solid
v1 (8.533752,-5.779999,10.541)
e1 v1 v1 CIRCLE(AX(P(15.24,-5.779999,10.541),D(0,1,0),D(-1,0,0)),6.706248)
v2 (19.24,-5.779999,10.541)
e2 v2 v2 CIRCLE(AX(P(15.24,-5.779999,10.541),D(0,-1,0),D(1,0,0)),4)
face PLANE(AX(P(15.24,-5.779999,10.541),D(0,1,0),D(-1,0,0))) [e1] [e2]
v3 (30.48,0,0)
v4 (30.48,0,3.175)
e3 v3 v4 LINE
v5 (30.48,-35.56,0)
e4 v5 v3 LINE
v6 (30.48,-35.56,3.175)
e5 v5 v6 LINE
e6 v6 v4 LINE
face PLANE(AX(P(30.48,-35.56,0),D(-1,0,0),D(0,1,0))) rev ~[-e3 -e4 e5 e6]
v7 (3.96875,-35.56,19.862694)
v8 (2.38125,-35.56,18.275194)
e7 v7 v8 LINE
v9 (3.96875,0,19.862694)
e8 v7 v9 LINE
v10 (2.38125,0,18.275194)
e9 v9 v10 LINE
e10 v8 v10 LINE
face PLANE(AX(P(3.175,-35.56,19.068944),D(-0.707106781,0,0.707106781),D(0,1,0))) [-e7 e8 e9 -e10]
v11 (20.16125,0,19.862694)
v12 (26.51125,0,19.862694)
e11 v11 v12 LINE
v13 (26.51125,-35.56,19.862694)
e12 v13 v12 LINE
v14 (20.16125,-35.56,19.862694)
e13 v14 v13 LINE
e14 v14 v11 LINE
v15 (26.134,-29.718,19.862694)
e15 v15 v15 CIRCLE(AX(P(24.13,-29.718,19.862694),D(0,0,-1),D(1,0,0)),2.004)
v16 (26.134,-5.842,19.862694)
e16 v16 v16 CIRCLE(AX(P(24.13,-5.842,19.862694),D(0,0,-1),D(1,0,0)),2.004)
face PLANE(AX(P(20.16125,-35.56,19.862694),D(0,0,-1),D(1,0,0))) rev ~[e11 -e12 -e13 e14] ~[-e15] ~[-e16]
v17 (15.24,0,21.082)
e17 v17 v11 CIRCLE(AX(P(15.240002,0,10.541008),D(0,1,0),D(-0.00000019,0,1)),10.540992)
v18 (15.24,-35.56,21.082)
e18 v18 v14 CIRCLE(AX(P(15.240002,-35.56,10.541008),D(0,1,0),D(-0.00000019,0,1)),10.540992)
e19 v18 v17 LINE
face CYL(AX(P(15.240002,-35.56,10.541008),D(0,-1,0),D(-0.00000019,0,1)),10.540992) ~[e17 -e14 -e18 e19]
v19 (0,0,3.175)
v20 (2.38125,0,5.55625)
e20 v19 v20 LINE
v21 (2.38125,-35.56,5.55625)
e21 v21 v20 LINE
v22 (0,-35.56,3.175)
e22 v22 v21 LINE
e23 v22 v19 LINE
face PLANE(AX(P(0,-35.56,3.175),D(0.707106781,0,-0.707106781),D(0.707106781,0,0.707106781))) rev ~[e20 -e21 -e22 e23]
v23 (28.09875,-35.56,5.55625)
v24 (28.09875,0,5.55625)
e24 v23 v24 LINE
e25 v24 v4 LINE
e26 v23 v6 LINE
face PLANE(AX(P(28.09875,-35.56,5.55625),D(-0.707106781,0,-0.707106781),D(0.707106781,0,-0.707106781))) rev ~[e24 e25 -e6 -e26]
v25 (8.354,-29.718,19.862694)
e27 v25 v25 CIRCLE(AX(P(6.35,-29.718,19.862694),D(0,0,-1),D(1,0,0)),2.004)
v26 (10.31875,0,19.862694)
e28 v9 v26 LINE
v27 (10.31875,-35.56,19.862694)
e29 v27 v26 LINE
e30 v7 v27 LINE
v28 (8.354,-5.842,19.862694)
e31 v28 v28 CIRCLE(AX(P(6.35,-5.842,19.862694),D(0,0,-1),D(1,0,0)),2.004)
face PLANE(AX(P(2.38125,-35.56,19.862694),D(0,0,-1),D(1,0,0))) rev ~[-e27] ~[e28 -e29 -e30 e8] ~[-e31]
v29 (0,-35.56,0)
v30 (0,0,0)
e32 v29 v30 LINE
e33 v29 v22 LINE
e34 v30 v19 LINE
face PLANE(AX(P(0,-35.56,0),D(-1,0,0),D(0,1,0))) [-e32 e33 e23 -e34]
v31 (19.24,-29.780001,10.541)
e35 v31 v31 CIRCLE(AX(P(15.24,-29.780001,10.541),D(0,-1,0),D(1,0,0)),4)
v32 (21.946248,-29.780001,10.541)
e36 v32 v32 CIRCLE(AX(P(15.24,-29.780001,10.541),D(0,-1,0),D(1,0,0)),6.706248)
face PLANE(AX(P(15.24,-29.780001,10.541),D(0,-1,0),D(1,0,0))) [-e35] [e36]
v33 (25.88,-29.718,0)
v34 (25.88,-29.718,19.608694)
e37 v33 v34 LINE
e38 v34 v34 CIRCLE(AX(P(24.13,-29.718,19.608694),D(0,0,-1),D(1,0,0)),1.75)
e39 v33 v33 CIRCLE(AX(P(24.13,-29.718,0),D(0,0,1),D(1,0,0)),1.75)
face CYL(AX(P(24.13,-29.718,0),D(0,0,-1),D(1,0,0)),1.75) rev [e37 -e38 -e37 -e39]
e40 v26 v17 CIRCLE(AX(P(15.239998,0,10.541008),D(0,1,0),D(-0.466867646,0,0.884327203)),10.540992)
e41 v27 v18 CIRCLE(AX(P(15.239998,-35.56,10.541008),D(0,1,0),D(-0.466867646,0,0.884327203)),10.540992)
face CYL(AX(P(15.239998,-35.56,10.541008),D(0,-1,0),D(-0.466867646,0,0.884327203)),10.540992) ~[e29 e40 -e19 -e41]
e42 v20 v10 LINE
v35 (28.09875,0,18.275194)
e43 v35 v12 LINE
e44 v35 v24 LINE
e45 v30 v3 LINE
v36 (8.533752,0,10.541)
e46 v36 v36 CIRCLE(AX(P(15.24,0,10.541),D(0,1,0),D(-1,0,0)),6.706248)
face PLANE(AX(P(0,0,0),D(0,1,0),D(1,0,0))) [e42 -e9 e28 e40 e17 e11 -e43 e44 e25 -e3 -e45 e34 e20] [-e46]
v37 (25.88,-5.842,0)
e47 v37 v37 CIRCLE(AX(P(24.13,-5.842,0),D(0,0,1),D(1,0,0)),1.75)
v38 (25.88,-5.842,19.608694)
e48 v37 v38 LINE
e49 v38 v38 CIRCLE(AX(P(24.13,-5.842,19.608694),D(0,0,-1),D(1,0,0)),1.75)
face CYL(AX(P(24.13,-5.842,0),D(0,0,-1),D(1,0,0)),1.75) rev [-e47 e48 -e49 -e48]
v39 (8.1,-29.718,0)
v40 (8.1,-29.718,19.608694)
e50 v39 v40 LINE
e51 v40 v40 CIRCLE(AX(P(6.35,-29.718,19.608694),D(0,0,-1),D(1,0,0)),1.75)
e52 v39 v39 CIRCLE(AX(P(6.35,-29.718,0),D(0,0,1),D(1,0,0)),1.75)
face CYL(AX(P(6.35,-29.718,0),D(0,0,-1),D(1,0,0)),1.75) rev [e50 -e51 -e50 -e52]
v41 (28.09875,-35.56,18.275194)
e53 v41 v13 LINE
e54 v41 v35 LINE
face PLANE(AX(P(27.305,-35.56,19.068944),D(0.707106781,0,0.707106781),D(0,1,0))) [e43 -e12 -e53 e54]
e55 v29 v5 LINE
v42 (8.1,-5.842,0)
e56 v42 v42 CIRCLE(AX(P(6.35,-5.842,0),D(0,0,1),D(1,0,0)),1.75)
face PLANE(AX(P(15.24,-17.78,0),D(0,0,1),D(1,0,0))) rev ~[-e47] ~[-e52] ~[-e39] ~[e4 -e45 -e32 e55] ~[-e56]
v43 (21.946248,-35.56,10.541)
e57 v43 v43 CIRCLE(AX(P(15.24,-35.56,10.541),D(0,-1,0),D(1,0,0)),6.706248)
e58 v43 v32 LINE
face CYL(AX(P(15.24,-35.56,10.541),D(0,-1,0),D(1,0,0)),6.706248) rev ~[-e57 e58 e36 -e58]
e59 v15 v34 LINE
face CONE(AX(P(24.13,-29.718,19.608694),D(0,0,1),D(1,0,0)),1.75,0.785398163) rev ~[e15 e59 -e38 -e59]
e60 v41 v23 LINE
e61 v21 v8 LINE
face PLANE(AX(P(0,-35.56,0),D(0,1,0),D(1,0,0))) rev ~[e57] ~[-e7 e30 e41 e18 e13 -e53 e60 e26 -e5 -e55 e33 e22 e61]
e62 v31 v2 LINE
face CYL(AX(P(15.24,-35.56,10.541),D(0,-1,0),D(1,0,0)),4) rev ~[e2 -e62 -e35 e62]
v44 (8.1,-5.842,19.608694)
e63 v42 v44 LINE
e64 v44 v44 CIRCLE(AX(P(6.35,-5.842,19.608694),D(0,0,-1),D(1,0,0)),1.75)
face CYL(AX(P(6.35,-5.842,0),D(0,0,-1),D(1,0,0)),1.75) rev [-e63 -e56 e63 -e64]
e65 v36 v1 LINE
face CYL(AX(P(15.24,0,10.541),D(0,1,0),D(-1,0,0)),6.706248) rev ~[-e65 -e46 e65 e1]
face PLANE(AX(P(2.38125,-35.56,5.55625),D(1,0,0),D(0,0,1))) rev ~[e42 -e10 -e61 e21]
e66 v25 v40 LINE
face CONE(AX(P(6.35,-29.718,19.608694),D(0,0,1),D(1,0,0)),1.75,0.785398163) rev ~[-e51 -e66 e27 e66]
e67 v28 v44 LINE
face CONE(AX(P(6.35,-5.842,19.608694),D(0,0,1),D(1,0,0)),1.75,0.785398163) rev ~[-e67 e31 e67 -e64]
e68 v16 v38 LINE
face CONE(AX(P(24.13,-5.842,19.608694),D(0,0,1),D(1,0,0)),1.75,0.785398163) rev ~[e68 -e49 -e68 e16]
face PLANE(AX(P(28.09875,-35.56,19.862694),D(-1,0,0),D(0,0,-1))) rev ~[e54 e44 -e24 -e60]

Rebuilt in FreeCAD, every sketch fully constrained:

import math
import FreeCAD as App
import Part
import Sketcher
from FreeCAD import Vector
Q = App.Units.Quantity


def edges_at(feature, points):
    """Names of the edges that pass closest to the given points."""
    edges = feature.Shape.Edges
    near = lambda p: min(range(len(edges)), key=lambda i: edges[i].distToShape(Part.Vertex(*p))[0])
    return sorted({f"Edge{near(p) + 1}" for p in points})


def add_polygon(sketch, points):
    """Adds a closed chain of lines whose ends are joined by coincident constraints."""
    first, n = sketch.GeometryCount, len(points)
    for a, b in zip(points, points[1:] + points[:1]):
        sketch.addGeometry(Part.LineSegment(App.Vector(*a, 0), App.Vector(*b, 0)), False)
    for i in range(n):
        sketch.addConstraint(Sketcher.Constraint("Coincident", first + i, 2, first + (i + 1) % n, 1))

doc = App.newDocument("Part")
body = doc.addObject("PartDesign::Body", "Body")

# Sketch on XY plane
sketch1 = body.newObject("Sketcher::SketchObject", "Sketch")
sketch1.AttachmentSupport = (doc.getObject("XY_Plane"), [""])
sketch1.MapMode = "FlatFace"
add_polygon(sketch1, [(0, 0), (0, -35.6), (30.5, -35.6), (30.5, 0)])  # lines 0-3
sketch1.addGeometry(Part.Circle(Vector(6.3, -29.7, 0), Vector(0, 0, 1), 1.8), False)  # 4
sketch1.addGeometry(Part.Circle(Vector(24.1, -29.7, 0), Vector(0, 0, 1), 1.8), False)  # 5
sketch1.addGeometry(Part.Circle(Vector(6.3, -5.8, 0), Vector(0, 0, 1), 1.8), False)  # 6
sketch1.addGeometry(Part.Circle(Vector(24.1, -5.8, 0), Vector(0, 0, 1), 1.8), False)  # 7
sketch1.addConstraint([
    Sketcher.Constraint("Vertical", 0),
    Sketcher.Constraint("Horizontal", 1),
    Sketcher.Constraint("Vertical", 2),
    Sketcher.Constraint("Horizontal", 3),
    Sketcher.Constraint("Coincident", 3, 2, -1, 1),
    Sketcher.Constraint("Equal", 4, 5),
    Sketcher.Constraint("Equal", 5, 6),
    Sketcher.Constraint("Equal", 6, 7),
    Sketcher.Constraint("Horizontal", 4, 3, 5, 3),
    Sketcher.Constraint("Horizontal", 6, 3, 7, 3),
    Sketcher.Constraint("Vertical", 4, 3, 6, 3),
    Sketcher.Constraint("Vertical", 5, 3, 7, 3),
    Sketcher.Constraint("DistanceX", 1, 1, 1, 2, Q("1.2 in")),
    Sketcher.Constraint("DistanceY", 0, 2, 0, 1, Q("1.4 in")),
    Sketcher.Constraint("DistanceX", 4, 3, 5, 3, Q("0.7 in")),
    Sketcher.Constraint("Diameter", 4, 3.5),
    Sketcher.Constraint("DistanceX", -1, 1, 4, 3, Q("0.25 in")),
    Sketcher.Constraint("DistanceY", 4, 3, -1, 1, Q("1.17 in")),
    Sketcher.Constraint("DistanceY", 6, 3, -1, 1, Q("0.23 in")),
])
pad1 = body.newObject("PartDesign::Pad", "Pad")
pad1.Profile = sketch1
pad1.Length = Q("0.83 in")

# Sketch on XZ plane
sketch2 = body.newObject("Sketcher::SketchObject", "Sketch001")
sketch2.AttachmentSupport = (doc.getObject("XZ_Plane"), [""])
sketch2.MapMode = "FlatFace"
sketch2.AttachmentOffset = App.Placement(Vector(0, 0, 1.4 * 25.4), App.Rotation())
sketch2.addGeometry([
    Part.Circle(Vector(15.2, 10.5, 0), Vector(0, 0, 1), 4),  # 0
    Part.ArcOfCircle(Part.Circle(Vector(15.2, 10.5, 0), Vector(0, 0, 1), 10.5), math.radians(90), math.radians(118)),  # 1
    Part.LineSegment(Vector(15.2, 21.1, 0), Vector(0, 21.1, 0)),  # 2
    Part.LineSegment(Vector(0, 21.1, 0), Vector(0, 3.2, 0)),  # 3
    Part.LineSegment(Vector(0, 3.2, 0), Vector(2.4, 5.6, 0)),  # 4
    Part.LineSegment(Vector(2.4, 5.6, 0), Vector(2.4, 19.9, 0)),  # 5
    Part.LineSegment(Vector(2.4, 19.9, 0), Vector(10.3, 19.9, 0)),  # 6
    Part.ArcOfCircle(Part.Circle(Vector(15.2, 10.5, 0), Vector(0, 0, 1), 10.5), math.radians(62), math.radians(90)),  # 7
    Part.LineSegment(Vector(20.2, 19.9, 0), Vector(28.1, 19.9, 0)),  # 8
    Part.LineSegment(Vector(28.1, 19.9, 0), Vector(28.1, 5.6, 0)),  # 9
    Part.LineSegment(Vector(28.1, 5.6, 0), Vector(30.5, 3.2, 0)),  # 10
    Part.LineSegment(Vector(30.5, 3.2, 0), Vector(30.5, 21.1, 0)),  # 11
    Part.LineSegment(Vector(30.5, 21.1, 0), Vector(15.2, 21.1, 0)),  # 12
], False)
sketch2.addConstraint([
    Sketcher.Constraint("Tangent", 1, 1, 2, 1),
    Sketcher.Constraint("Coincident", 2, 2, 3, 1),
    Sketcher.Constraint("Coincident", 3, 2, 4, 1),
    Sketcher.Constraint("Coincident", 4, 2, 5, 1),
    Sketcher.Constraint("Coincident", 5, 2, 6, 1),
    Sketcher.Constraint("Coincident", 6, 2, 1, 2),
    Sketcher.Constraint("Coincident", 7, 1, 8, 1),
    Sketcher.Constraint("Coincident", 8, 2, 9, 1),
    Sketcher.Constraint("Coincident", 9, 2, 10, 1),
    Sketcher.Constraint("Coincident", 10, 2, 11, 1),
    Sketcher.Constraint("Coincident", 11, 2, 12, 1),
    Sketcher.Constraint("Tangent", 12, 2, 7, 2),
    Sketcher.Constraint("Horizontal", 2),
    Sketcher.Constraint("Vertical", 3),
    Sketcher.Constraint("Vertical", 5),
    Sketcher.Constraint("Horizontal", 6),
    Sketcher.Constraint("Horizontal", 8),
    Sketcher.Constraint("Vertical", 9),
    Sketcher.Constraint("Vertical", 11),
    Sketcher.Constraint("Horizontal", 12),
    Sketcher.Constraint("Coincident", 1, 3, 0, 3),
    Sketcher.Constraint("Coincident", 7, 3, 0, 3),
    Sketcher.Constraint("Equal", 1, 7),
    Sketcher.Constraint("PointOnObject", 2, 2, -2),
    Sketcher.Constraint("Perpendicular", 4, 10),
    Sketcher.Constraint("Horizontal", 6, 2, 7, 1),
    Sketcher.Constraint("Horizontal", 4, 2, 9, 2),
    Sketcher.Constraint("Horizontal", 3, 2, 10, 2),
    Sketcher.Constraint("Equal", 6, 8),
    Sketcher.Constraint("Equal", 2, 12),
    Sketcher.Constraint("DistanceX", 2, 2, 2, 1, Q("0.6 in")),
    Sketcher.Constraint("Diameter", 0, 8.0),
    Sketcher.Constraint("DistanceX", 6, 1, 6, 2, Q("0.3125 in")),
    Sketcher.Constraint("DistanceY", 3, 2, 3, 1, Q("0.705 in")),
    Sketcher.Constraint("DistanceY", -1, 1, 1, 1, Q("0.83 in")),
    Sketcher.Constraint("DistanceY", 3, 2, 0, 3, Q("0.29 in")),
    Sketcher.Constraint("DistanceX", -1, 1, 4, 2, Q("0.09375 in")),
])
pocket1 = body.newObject("PartDesign::Pocket", "Pocket")
pocket1.Profile = sketch2
pocket1.Type = "ThroughAll"
doc.recompute()

chamfer = body.newObject("PartDesign::Chamfer", "Chamfer")
chamfer.Base = (pocket1, edges_at(pocket1, [(28.099, -17.78, 19.863), (2.381, -17.78, 19.863)]))
chamfer.Size = Q("0.0625 in")
doc.recompute()

chamfer2 = body.newObject("PartDesign::Chamfer", "Chamfer001")
chamfer2.Base = (chamfer, edges_at(chamfer, [
    (22.38, -29.718, 19.863),
    (22.38, -5.842, 19.863),
    (4.6, -5.842, 19.863),
    (4.6, -29.718, 19.863),
]))
chamfer2.Size = Q("0.01 in")

# Sketch on XZ plane
sketch3 = body.newObject("Sketcher::SketchObject", "Sketch002")
sketch3.AttachmentSupport = (doc.getObject("XZ_Plane"), [""])
sketch3.MapMode = "FlatFace"
sketch3.AttachmentOffset = App.Placement(Vector(0, 0, 1.4 * 25.4), App.Rotation())
sketch3.addGeometry(Part.Circle(Vector(15, 11, 0), Vector(0, 0, 1), 7), False)
sketch3.addConstraint([
    Sketcher.Constraint("DistanceX", -1, 1, 0, 3, Q("0.6 in")),
    Sketcher.Constraint("DistanceY", -1, 1, 0, 3, Q("0.415 in")),
    Sketcher.Constraint("Diameter", 0, 13.412496),
])
pocket2 = body.newObject("PartDesign::Pocket", "Pocket001")
pocket2.Profile = sketch3
pocket2.Length = 5.779999

# Sketch on XZ plane
sketch4 = body.newObject("Sketcher::SketchObject", "Sketch003")
sketch4.AttachmentSupport = (doc.getObject("XZ_Plane"), [""])
sketch4.MapMode = "FlatFace"
sketch4.addGeometry(Part.Circle(Vector(15, 11, 0), Vector(0, 0, 1), 7), False)
sketch4.addConstraint([
    Sketcher.Constraint("DistanceX", -1, 1, 0, 3, Q("0.6 in")),
    Sketcher.Constraint("DistanceY", -1, 1, 0, 3, Q("0.415 in")),
    Sketcher.Constraint("Diameter", 0, 13.412496),
])
pocket3 = body.newObject("PartDesign::Pocket", "Pocket002")
pocket3.Profile = sketch4
pocket3.Length = 5.779999
pocket3.Reversed = True

doc.recompute()
